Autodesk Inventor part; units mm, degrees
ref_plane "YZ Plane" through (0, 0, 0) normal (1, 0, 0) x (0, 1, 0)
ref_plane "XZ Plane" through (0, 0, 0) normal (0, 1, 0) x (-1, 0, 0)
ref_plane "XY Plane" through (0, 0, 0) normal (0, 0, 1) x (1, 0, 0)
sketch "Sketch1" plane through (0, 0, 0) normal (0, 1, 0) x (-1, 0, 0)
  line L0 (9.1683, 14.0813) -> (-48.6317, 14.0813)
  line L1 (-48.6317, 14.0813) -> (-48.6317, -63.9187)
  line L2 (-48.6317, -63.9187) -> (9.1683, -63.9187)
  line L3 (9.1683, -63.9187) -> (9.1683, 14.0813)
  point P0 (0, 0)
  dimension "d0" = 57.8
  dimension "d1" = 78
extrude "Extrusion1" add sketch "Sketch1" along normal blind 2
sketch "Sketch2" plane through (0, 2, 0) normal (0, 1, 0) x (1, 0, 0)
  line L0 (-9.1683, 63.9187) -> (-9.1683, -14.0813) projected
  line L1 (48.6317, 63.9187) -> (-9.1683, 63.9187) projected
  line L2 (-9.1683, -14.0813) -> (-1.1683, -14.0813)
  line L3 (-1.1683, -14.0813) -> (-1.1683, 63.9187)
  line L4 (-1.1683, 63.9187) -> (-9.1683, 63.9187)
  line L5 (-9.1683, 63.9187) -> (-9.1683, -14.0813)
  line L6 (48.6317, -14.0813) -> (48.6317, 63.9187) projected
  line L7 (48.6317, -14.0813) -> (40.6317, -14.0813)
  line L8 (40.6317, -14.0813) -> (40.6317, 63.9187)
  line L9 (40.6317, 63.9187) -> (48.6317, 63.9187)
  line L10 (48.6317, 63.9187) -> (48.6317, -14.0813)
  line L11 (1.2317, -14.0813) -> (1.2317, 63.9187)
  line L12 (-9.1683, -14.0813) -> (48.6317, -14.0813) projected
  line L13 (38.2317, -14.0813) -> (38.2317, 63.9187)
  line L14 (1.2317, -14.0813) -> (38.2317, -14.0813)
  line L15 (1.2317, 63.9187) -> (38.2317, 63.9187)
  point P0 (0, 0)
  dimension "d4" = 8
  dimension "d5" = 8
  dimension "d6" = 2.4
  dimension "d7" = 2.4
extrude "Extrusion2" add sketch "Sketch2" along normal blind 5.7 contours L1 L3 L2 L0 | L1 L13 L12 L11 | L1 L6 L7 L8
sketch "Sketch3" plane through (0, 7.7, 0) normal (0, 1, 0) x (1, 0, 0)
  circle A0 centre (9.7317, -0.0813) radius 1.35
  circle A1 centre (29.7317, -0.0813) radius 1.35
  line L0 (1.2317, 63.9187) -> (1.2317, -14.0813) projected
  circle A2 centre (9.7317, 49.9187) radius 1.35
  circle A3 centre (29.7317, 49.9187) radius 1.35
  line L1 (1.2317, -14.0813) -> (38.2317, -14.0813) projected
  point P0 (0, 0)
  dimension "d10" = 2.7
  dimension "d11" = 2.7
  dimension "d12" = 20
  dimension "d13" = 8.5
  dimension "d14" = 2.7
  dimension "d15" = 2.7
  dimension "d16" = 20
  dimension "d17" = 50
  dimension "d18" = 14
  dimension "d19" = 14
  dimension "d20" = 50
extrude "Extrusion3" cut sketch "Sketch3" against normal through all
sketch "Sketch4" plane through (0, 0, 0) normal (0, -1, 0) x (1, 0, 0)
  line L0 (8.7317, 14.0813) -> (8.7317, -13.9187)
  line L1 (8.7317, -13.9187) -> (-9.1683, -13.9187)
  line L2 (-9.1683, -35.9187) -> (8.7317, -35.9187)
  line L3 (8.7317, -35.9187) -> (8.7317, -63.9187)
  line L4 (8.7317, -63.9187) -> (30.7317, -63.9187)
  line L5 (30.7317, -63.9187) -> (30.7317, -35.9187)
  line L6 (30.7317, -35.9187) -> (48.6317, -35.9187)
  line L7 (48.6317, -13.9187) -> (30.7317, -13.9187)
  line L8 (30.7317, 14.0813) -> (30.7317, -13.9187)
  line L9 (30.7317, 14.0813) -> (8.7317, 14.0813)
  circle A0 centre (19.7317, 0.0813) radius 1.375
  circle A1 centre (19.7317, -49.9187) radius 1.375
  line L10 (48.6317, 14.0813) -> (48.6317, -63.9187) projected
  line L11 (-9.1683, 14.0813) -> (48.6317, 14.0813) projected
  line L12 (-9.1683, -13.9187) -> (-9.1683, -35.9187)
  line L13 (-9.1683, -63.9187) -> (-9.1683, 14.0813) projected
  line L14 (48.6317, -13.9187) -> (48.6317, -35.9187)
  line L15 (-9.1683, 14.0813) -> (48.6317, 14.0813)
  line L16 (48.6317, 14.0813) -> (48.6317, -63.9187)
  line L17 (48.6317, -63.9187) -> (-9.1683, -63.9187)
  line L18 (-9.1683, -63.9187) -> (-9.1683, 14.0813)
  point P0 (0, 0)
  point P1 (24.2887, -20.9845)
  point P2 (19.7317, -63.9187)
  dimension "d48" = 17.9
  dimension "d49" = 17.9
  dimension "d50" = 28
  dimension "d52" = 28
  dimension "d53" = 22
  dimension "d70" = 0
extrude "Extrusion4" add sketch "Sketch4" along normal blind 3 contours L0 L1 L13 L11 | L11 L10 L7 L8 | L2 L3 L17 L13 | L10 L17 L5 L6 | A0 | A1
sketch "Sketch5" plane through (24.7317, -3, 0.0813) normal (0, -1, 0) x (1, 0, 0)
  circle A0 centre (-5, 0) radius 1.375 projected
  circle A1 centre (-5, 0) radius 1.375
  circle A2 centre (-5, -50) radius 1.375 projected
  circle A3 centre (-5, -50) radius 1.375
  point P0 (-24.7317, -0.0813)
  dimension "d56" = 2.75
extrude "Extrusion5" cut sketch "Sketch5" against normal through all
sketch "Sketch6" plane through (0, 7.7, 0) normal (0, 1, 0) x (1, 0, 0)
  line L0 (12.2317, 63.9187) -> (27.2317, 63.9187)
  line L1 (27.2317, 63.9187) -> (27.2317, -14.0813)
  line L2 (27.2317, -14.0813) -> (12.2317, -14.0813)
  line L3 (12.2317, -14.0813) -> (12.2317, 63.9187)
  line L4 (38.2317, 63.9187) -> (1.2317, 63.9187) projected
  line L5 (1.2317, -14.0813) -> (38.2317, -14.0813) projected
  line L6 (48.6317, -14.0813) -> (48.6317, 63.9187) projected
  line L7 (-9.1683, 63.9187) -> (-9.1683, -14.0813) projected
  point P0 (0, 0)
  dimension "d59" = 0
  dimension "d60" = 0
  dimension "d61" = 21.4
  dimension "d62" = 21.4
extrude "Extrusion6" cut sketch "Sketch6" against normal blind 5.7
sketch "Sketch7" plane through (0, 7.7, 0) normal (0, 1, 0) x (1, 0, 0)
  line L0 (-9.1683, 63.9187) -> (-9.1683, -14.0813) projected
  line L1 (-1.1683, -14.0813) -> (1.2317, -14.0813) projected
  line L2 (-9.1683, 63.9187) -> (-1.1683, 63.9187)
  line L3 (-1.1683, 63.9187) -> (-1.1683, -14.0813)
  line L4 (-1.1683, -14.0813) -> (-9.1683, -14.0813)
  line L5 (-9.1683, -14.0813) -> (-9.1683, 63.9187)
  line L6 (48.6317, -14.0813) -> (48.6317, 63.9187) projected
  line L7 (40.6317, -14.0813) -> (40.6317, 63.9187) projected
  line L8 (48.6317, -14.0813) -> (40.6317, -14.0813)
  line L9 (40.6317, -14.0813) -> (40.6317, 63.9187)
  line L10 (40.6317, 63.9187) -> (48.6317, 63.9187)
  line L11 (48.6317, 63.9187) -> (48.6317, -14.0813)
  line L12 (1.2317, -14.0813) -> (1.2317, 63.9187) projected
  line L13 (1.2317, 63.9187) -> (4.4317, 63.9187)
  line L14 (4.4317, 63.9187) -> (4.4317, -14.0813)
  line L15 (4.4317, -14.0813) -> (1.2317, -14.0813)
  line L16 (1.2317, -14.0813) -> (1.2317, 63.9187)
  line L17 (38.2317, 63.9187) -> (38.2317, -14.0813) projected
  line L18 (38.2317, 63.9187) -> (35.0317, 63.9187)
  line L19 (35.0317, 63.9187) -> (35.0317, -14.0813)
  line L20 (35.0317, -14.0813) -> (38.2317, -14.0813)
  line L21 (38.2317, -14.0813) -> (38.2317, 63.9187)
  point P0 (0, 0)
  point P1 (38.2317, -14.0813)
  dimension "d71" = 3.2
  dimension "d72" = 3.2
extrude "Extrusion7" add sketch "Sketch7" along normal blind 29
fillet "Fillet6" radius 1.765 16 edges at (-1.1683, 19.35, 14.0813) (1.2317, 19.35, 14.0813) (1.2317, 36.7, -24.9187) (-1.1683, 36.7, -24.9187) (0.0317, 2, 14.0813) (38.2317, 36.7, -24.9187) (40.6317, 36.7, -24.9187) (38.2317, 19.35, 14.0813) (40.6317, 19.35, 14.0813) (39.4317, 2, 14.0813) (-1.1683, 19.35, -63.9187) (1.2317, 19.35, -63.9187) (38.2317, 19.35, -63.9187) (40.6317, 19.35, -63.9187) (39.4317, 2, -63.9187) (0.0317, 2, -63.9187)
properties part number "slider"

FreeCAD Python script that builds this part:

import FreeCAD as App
import Part
import Sketcher


def edges_at(feature, points):
    """Names of the edges that pass closest to the given points."""
    edges = feature.Shape.Edges
    near = lambda p: min(range(len(edges)), key=lambda i: edges[i].distToShape(Part.Vertex(*p))[0])
    return sorted({f"Edge{near(p) + 1}" for p in points})


def add_polygon(sketch, points):
    """Adds a closed chain of lines whose ends are joined by coincident constraints."""
    first, n = sketch.GeometryCount, len(points)
    for a, b in zip(points, points[1:] + points[:1]):
        sketch.addGeometry(Part.LineSegment(App.Vector(*a, 0), App.Vector(*b, 0)), False)
    for i in range(n):
        sketch.addConstraint(Sketcher.Constraint("Coincident", first + i, 2, first + (i + 1) % n, 1))

doc = App.newDocument("Part")
body = doc.addObject("PartDesign::Body", "Body")

# Sketch on XZ plane
sketch1 = doc.addObject("Sketcher::SketchObject", "Sketch")
body.addObject(sketch1)
sketch1.AttachmentSupport = (doc.XZ_Plane, [""])
sketch1.MapMode = "FlatFace"
add_polygon(sketch1, [(-9, -64), (-9, 14), (49, 14), (49, -64)])  # lines 0-3
sketch1.addConstraint([
    Sketcher.Constraint("Vertical", 0),
    Sketcher.Constraint("Horizontal", 1),
    Sketcher.Constraint("Vertical", 2),
    Sketcher.Constraint("Horizontal", 3),
    Sketcher.Constraint("DistanceY", 0, 1, 0, 2, 78.0),
    Sketcher.Constraint("DistanceX", 1, 1, 1, 2, 57.8),
    Sketcher.Constraint("DistanceX", 0, 2, -1, 1, 9.1683),
    Sketcher.Constraint("DistanceY", -1, 1, 0, 2, 14.0813),
])
pad1 = doc.addObject("PartDesign::Pad", "Pad")
body.addObject(pad1)
pad1.Profile = sketch1
pad1.Length = 2
pad1.Reversed = True

# Sketch on XZ plane
sketch2 = doc.addObject("Sketcher::SketchObject", "Sketch001")
body.addObject(sketch2)
sketch2.AttachmentSupport = (doc.XZ_Plane, [""])
sketch2.MapMode = "FlatFace"
sketch2.AttachmentOffset = App.Placement(App.Vector(0, 0, -2), App.Rotation())
add_polygon(sketch2, [(-1, -64), (-9, -64), (-9, 14), (-1, 14)])  # lines 0-3
add_polygon(sketch2, [(38, -64), (1, -64), (1, 14), (38, 14)])  # lines 4-7
add_polygon(sketch2, [(49, -64), (41, -64), (41, 14), (49, 14)])  # lines 8-11
sketch2.addConstraint([
    Sketcher.Constraint("Horizontal", 0),
    Sketcher.Constraint("Vertical", 1),
    Sketcher.Constraint("Horizontal", 2),
    Sketcher.Constraint("Vertical", 3),
    Sketcher.Constraint("Horizontal", 4),
    Sketcher.Constraint("Vertical", 5),
    Sketcher.Constraint("Horizontal", 6),
    Sketcher.Constraint("Vertical", 7),
    Sketcher.Constraint("Horizontal", 8),
    Sketcher.Constraint("Vertical", 9),
    Sketcher.Constraint("Horizontal", 10),
    Sketcher.Constraint("Vertical", 11),
    Sketcher.Constraint("Horizontal", 3, 2, 4, 2),
    Sketcher.Constraint("Horizontal", 2, 2, 5, 2),
    Sketcher.Constraint("Horizontal", 7, 2, 8, 2),
    Sketcher.Constraint("Horizontal", 6, 2, 9, 2),
    Sketcher.Constraint("Equal", 2, 8),
    Sketcher.Constraint("DistanceX", 0, 2, 0, 1, 8.0),
    Sketcher.Constraint("DistanceX", 3, 2, 4, 2, 2.4),
    Sketcher.Constraint("DistanceX", 7, 2, 8, 2, 2.4),
    Sketcher.Constraint("DistanceX", 4, 2, 4, 1, 37.0),
    Sketcher.Constraint("DistanceY", 1, 1, 1, 2, 78.0),
    Sketcher.Constraint("DistanceX", 0, 2, -1, 1, 9.1683),
    Sketcher.Constraint("DistanceY", 0, 2, -1, 1, 63.9187),
])
pad2 = doc.addObject("PartDesign::Pad", "Pad001")
body.addObject(pad2)
pad2.Profile = sketch2
pad2.Length = 5.7
pad2.Reversed = True

# Sketch on XZ plane
sketch3 = doc.addObject("Sketcher::SketchObject", "Sketch002")
body.addObject(sketch3)
sketch3.AttachmentSupport = (doc.XZ_Plane, [""])
sketch3.MapMode = "FlatFace"
sketch3.AttachmentOffset = App.Placement(App.Vector(0, 0, -7.7), App.Rotation())
sketch3.addGeometry([
    Part.Circle(App.Vector(9.7, 0.1, 0), App.Vector(0, 0, 1), 1.4),
    Part.Circle(App.Vector(29.7, 0.1, 0), App.Vector(0, 0, 1), 1.4),
    Part.Circle(App.Vector(9.7, -49.9, 0), App.Vector(0, 0, 1), 1.4),
    Part.Circle(App.Vector(29.7, -49.9, 0), App.Vector(0, 0, 1), 1.4),
], False)
sketch3.addConstraint([
    Sketcher.Constraint("Equal", 0, 1),
    Sketcher.Constraint("Equal", 1, 2),
    Sketcher.Constraint("Equal", 2, 3),
    Sketcher.Constraint("Horizontal", 0, 3, 1, 3),
    Sketcher.Constraint("Horizontal", 2, 3, 3, 3),
    Sketcher.Constraint("Vertical", 0, 3, 2, 3),
    Sketcher.Constraint("Vertical", 1, 3, 3, 3),
    Sketcher.Constraint("Diameter", 0, 2.7),
    Sketcher.Constraint("DistanceX", 0, 3, 1, 3, 20.0),
    Sketcher.Constraint("DistanceY", 2, 3, 0, 3, 50.0),
    Sketcher.Constraint("DistanceX", -1, 1, 0, 3, 9.7317),
    Sketcher.Constraint("DistanceY", -1, 1, 0, 3, 0.0813),
])
pocket1 = doc.addObject("PartDesign::Pocket", "Pocket")
body.addObject(pocket1)
pocket1.Profile = sketch3
pocket1.Type = "ThroughAll"
pocket1.Reversed = True

# Sketch on XZ plane
sketch4 = doc.addObject("Sketcher::SketchObject", "Sketch003")
body.addObject(sketch4)
sketch4.AttachmentSupport = (doc.XZ_Plane, [""])
sketch4.MapMode = "FlatFace"
add_polygon(sketch4, [(8.7, -13.9), (8.7, 14.1), (-9.2, 14.1), (-9.2, -13.9)])  # lines 0-3
add_polygon(sketch4, [(48.6, 14.1), (30.7, 14.1), (30.7, -13.9), (48.6, -13.9)])  # lines 4-7
add_polygon(sketch4, [(8.7, -35.9), (-9.2, -35.9), (-9.2, -63.9), (8.7, -63.9)])  # lines 8-11
add_polygon(sketch4, [(48.6, -63.9), (48.6, -35.9), (30.7, -35.9), (30.7, -63.9)])  # lines 12-15
sketch4.addGeometry(Part.Circle(App.Vector(19.7, 0.1, 0), App.Vector(0, 0, 1), 1.4), False)  # 16
sketch4.addGeometry(Part.Circle(App.Vector(19.7, -49.9, 0), App.Vector(0, 0, 1), 1.4), False)  # 17
sketch4.addConstraint([
    Sketcher.Constraint("Vertical", 0),
    Sketcher.Constraint("Horizontal", 1),
    Sketcher.Constraint("Vertical", 2),
    Sketcher.Constraint("Horizontal", 3),
    Sketcher.Constraint("Horizontal", 4),
    Sketcher.Constraint("Vertical", 5),
    Sketcher.Constraint("Horizontal", 6),
    Sketcher.Constraint("Vertical", 7),
    Sketcher.Constraint("Horizontal", 8),
    Sketcher.Constraint("Vertical", 9),
    Sketcher.Constraint("Horizontal", 10),
    Sketcher.Constraint("Vertical", 11),
    Sketcher.Constraint("Vertical", 12),
    Sketcher.Constraint("Horizontal", 13),
    Sketcher.Constraint("Vertical", 14),
    Sketcher.Constraint("Horizontal", 15),
    Sketcher.Constraint("Equal", 16, 17),
    Sketcher.Constraint("Horizontal", 1, 2, 4, 2),
    Sketcher.Constraint("Horizontal", 3, 2, 5, 2),
    Sketcher.Constraint("Horizontal", 11, 2, 12, 2),
    Sketcher.Constraint("Horizontal", 10, 2, 14, 2),
    Sketcher.Constraint("Vertical", 16, 3, 17, 3),
    Sketcher.Constraint("Vertical", 2, 2, 8, 2),
    Sketcher.Constraint("Vertical", 3, 2, 10, 2),
    Sketcher.Constraint("Vertical", 7, 2, 12, 2),
    Sketcher.Constraint("Vertical", 5, 2, 13, 2),
    Sketcher.Constraint("Equal", 3, 4),
    Sketcher.Constraint("Equal", 7, 9),
    Sketcher.Constraint("DistanceY", 0, 1, 0, 2, 28.0),
    Sketcher.Constraint("DistanceX", 1, 2, 1, 1, 17.9),
    Sketcher.Constraint("DistanceX", 0, 2, 4, 2, 22.0),
    Sketcher.Constraint("DistanceY", 8, 2, 2, 2, 22.0),
    Sketcher.Constraint("Diameter", 16, 2.75),
    Sketcher.Constraint("DistanceY", 17, 3, 16, 3, 50.0),
    Sketcher.Constraint("DistanceX", 0, 2, 16, 3, 11.0),
    Sketcher.Constraint("DistanceY", 16, 3, 0, 2, 14.0),
    Sketcher.Constraint("DistanceX", -1, 1, 16, 3, 19.7317),
    Sketcher.Constraint("DistanceY", -1, 1, 16, 3, 0.0813),
])
pad3 = doc.addObject("PartDesign::Pad", "Pad002")
body.addObject(pad3)
pad3.Profile = sketch4
pad3.Length = 3

# Sketch on XZ plane
sketch5 = doc.addObject("Sketcher::SketchObject", "Sketch004")
body.addObject(sketch5)
sketch5.AttachmentSupport = (doc.XZ_Plane, [""])
sketch5.MapMode = "FlatFace"
sketch5.AttachmentOffset = App.Placement(App.Vector(0, 0, 3), App.Rotation())
sketch5.addGeometry([
    Part.Circle(App.Vector(19.7, 0.1, 0), App.Vector(0, 0, 1), 1.4),
    Part.Circle(App.Vector(19.7, -49.9, 0), App.Vector(0, 0, 1), 1.4),
], False)
sketch5.addConstraint([
    Sketcher.Constraint("Equal", 0, 1),
    Sketcher.Constraint("Vertical", 0, 3, 1, 3),
    Sketcher.Constraint("Diameter", 0, 2.75),
    Sketcher.Constraint("DistanceY", 1, 3, 0, 3, 50.0),
    Sketcher.Constraint("DistanceX", -1, 1, 0, 3, 19.7317),
    Sketcher.Constraint("DistanceY", -1, 1, 0, 3, 0.0813),
])
pocket2 = doc.addObject("PartDesign::Pocket", "Pocket001")
body.addObject(pocket2)
pocket2.Profile = sketch5
pocket2.Type = "ThroughAll"

# Sketch on XZ plane
sketch6 = doc.addObject("Sketcher::SketchObject", "Sketch005")
body.addObject(sketch6)
sketch6.AttachmentSupport = (doc.XZ_Plane, [""])
sketch6.MapMode = "FlatFace"
sketch6.AttachmentOffset = App.Placement(App.Vector(0, 0, -7.7), App.Rotation())
add_polygon(sketch6, [(27, -64), (12, -64), (12, 14), (27, 14)])  # lines 0-3
sketch6.addConstraint([
    Sketcher.Constraint("Horizontal", 0),
    Sketcher.Constraint("Vertical", 1),
    Sketcher.Constraint("Horizontal", 2),
    Sketcher.Constraint("Vertical", 3),
    Sketcher.Constraint("DistanceX", 0, 2, 0, 1, 15.0),
    Sketcher.Constraint("DistanceY", 1, 1, 1, 2, 78.0),
    Sketcher.Constraint("DistanceX", -1, 1, 0, 2, 12.2317),
    Sketcher.Constraint("DistanceY", 0, 2, -1, 1, 63.9187),
])
pocket3 = doc.addObject("PartDesign::Pocket", "Pocket002")
body.addObject(pocket3)
pocket3.Profile = sketch6
pocket3.Length = 5.7
pocket3.Reversed = True

# Sketch on XZ plane
sketch7 = doc.addObject("Sketcher::SketchObject", "Sketch006")
body.addObject(sketch7)
sketch7.AttachmentSupport = (doc.XZ_Plane, [""])
sketch7.MapMode = "FlatFace"
sketch7.AttachmentOffset = App.Placement(App.Vector(0, 0, -7.7), App.Rotation())
add_polygon(sketch7, [(-1.2, -63.9), (-9.2, -63.9), (-9.2, 14.1), (-1.2, 14.1)])  # lines 0-3
add_polygon(sketch7, [(1.2, -63.9), (1.2, 14.1), (4.4, 14.1), (4.4, -63.9)])  # lines 4-7
add_polygon(sketch7, [(40.6, 14.1), (48.6, 14.1), (48.6, -63.9), (40.6, -63.9)])  # lines 8-11
add_polygon(sketch7, [(38.2, 14.1), (38.2, -63.9), (35, -63.9), (35, 14.1)])  # lines 12-15
sketch7.addConstraint([
    Sketcher.Constraint("Horizontal", 0),
    Sketcher.Constraint("Vertical", 1),
    Sketcher.Constraint("Horizontal", 2),
    Sketcher.Constraint("Vertical", 3),
    Sketcher.Constraint("Vertical", 4),
    Sketcher.Constraint("Horizontal", 5),
    Sketcher.Constraint("Vertical", 6),
    Sketcher.Constraint("Horizontal", 7),
    Sketcher.Constraint("Horizontal", 8),
    Sketcher.Constraint("Vertical", 9),
    Sketcher.Constraint("Horizontal", 10),
    Sketcher.Constraint("Vertical", 11),
    Sketcher.Constraint("Vertical", 12),
    Sketcher.Constraint("Horizontal", 13),
    Sketcher.Constraint("Vertical", 14),
    Sketcher.Constraint("Horizontal", 15),
    Sketcher.Constraint("Horizontal", 2, 2, 4, 2),
    Sketcher.Constraint("Horizontal", 3, 2, 6, 2),
    Sketcher.Constraint("Horizontal", 5, 2, 8, 2),
    Sketcher.Constraint("Horizontal", 7, 2, 9, 2),
    Sketcher.Constraint("Horizontal", 10, 2, 12, 2),
    Sketcher.Constraint("Horizontal", 11, 2, 14, 2),
    Sketcher.Constraint("Equal", 2, 8),
    Sketcher.Constraint("Equal", 7, 13),
    Sketcher.Constraint("DistanceX", 5, 1, 5, 2, 3.2),
    Sketcher.Constraint("DistanceX", 0, 2, 0, 1, 8.0),
    Sketcher.Constraint("DistanceY", 1, 1, 1, 2, 78.0),
    Sketcher.Constraint("DistanceX", 7, 2, 12, 2, 37.0),
    Sketcher.Constraint("DistanceX", 2, 2, 4, 2, 2.4),
    Sketcher.Constraint("DistanceX", 5, 2, 8, 2, 44.2),
    Sketcher.Constraint("DistanceX", 0, 2, -1, 1, 9.1683),
    Sketcher.Constraint("DistanceY", 0, 2, -1, 1, 63.9187),
])
pad4 = doc.addObject("PartDesign::Pad", "Pad003")
body.addObject(pad4)
pad4.Profile = sketch7
pad4.Length = 29
pad4.Reversed = True
doc.recompute()

fillet = doc.addObject("PartDesign::Fillet", "Fillet")
body.addObject(fillet)
fillet.Base = (pad4, edges_at(pad4, [
    (-1.168, 19.35, 14.081),
    (1.232, 19.35, 14.081),
    (1.232, 36.7, -24.919),
    (-1.168, 36.7, -24.919),
    (0.032, 2, 14.081),
    (38.232, 36.7, -24.919),
    (40.632, 36.7, -24.919),
    (38.232, 19.35, 14.081),
    (40.632, 19.35, 14.081),
    (39.432, 2, 14.081),
    (-1.168, 19.35, -63.919),
    (1.232, 19.35, -63.919),
    (38.232, 19.35, -63.919),
    (40.632, 19.35, -63.919),
    (39.432, 2, -63.919),
    (0.032, 2, -63.919),
]))
fillet.Radius = 1.765

doc.recompute()
